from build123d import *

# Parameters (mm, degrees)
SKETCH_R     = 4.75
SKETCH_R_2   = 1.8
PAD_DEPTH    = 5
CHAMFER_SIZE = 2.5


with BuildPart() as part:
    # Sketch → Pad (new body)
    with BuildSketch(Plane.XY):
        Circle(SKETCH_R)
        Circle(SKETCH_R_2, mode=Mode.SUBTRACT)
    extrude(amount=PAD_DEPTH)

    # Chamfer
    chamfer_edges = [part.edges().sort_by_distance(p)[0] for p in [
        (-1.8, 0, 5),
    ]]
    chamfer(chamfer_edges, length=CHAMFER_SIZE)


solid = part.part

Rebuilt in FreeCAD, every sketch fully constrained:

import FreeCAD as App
import Part
import Sketcher
from FreeCAD import Vector
Q = App.Units.Quantity


def edges_at(feature, points):
    """Names of the edges that pass closest to the given points."""
    edges = feature.Shape.Edges
    near = lambda p: min(range(len(edges)), key=lambda i: edges[i].distToShape(Part.Vertex(*p))[0])
    return sorted({f"Edge{near(p) + 1}" for p in points})

doc = App.newDocument("Part")
params = doc.addObject("Spreadsheet::Sheet", "Params")
for row, (alias, value) in enumerate([
    ("sketch1_diameter", "9.5 mm"),
    ("sketch1_diameter2", "3.6 mm"),
    ("pad1_length", "5 mm"),
    ("chamfer_size", "2.5 mm"),
], start=1):
    params.set(f"A{row}", alias)
    params.set(f"B{row}", "=" + value)
    params.setAlias(f"B{row}", alias)

body = doc.addObject("PartDesign::Body", "Body")

sketch1 = body.newObject("Sketcher::SketchObject", "Sketch")
sketch1.AttachmentSupport = (doc.getObject("XY_Plane"), [""])
sketch1.MapMode = "FlatFace"
sketch1.addGeometry([
    Part.Circle(Vector(0, 0, 0), Vector(0, 0, 1), 4.8),
    Part.Circle(Vector(0, 0, 0), Vector(0, 0, 1), 1.8),
], False)
sketch1.addConstraint([
    Sketcher.Constraint("Coincident", 0, 3, -1, 1),
    Sketcher.Constraint("Coincident", 1, 3, -1, 1),
    Sketcher.Constraint("Diameter", 0, Q("9.5 mm")),
    Sketcher.Constraint("Diameter", 1, Q("3.6 mm")),
])
sketch1.setExpression("Constraints[2]", "Params.sketch1_diameter")
sketch1.setExpression("Constraints[3]", "Params.sketch1_diameter2")
pad1 = body.newObject("PartDesign::Pad", "Pad")
pad1.Profile = sketch1
pad1.setExpression("Length", "Params.pad1_length")
doc.recompute()

chamfer = body.newObject("PartDesign::Chamfer", "Chamfer")
chamfer.Base = (pad1, edges_at(pad1, [(-1.8, 0, 5)]))
chamfer.setExpression("Size", "Params.chamfer_size")

doc.recompute()
